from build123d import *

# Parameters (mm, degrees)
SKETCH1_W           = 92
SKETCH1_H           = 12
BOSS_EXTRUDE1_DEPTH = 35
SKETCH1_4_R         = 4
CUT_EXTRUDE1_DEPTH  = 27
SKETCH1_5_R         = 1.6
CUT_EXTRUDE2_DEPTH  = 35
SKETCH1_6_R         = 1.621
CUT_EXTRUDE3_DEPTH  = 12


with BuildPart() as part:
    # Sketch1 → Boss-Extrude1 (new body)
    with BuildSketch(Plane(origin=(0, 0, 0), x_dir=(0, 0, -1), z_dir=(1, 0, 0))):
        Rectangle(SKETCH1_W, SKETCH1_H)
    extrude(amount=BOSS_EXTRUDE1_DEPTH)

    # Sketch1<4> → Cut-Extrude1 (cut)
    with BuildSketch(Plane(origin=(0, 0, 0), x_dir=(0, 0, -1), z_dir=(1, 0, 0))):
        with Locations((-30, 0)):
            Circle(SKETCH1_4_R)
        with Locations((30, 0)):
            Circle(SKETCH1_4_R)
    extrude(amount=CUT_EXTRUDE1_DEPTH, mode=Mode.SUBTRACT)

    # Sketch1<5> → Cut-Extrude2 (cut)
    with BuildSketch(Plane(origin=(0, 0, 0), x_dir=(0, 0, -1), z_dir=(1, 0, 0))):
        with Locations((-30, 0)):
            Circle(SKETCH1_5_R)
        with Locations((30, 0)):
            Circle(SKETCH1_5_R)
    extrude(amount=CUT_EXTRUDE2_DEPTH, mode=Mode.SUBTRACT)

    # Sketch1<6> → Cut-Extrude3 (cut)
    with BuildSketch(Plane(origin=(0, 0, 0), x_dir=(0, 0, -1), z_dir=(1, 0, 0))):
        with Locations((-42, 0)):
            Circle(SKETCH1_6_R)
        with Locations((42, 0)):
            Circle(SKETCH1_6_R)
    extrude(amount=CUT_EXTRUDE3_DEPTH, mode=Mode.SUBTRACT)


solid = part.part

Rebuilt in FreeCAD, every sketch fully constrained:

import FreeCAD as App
import Part
import Sketcher
from FreeCAD import Vector


def add_polygon(sketch, points):
    """Adds a closed chain of lines whose ends are joined by coincident constraints."""
    first, n = sketch.GeometryCount, len(points)
    for a, b in zip(points, points[1:] + points[:1]):
        sketch.addGeometry(Part.LineSegment(App.Vector(*a, 0), App.Vector(*b, 0)), False)
    for i in range(n):
        sketch.addConstraint(Sketcher.Constraint("Coincident", first + i, 2, first + (i + 1) % n, 1))

doc = App.newDocument("Part")
params = doc.addObject("Spreadsheet::Sheet", "Params")
for row, (alias, value) in enumerate([
    ("sketch1_width", "12 mm"),
    ("sketch1_height", "92 mm"),
    ("pad1_length", "35 mm"),
    ("sketch2_diameter", "8 mm"),
    ("pocket1_length", "27 mm"),
    ("sketch3_diameter", "3.2 mm"),
    ("pocket2_length", "35 mm"),
    ("pocket3_length", "12 mm"),
], start=1):
    params.set(f"A{row}", alias)
    params.set(f"B{row}", "=" + value)
    params.setAlias(f"B{row}", alias)

body = doc.addObject("PartDesign::Body", "Body")

# Sketch on YZ plane
sketch1 = body.newObject("Sketcher::SketchObject", "Sketch")
sketch1.AttachmentSupport = (doc.getObject("YZ_Plane"), [""])
sketch1.MapMode = "FlatFace"
add_polygon(sketch1, [(6, 46), (-6, 46), (-6, -46), (6, -46)])  # lines 0-3
sketch1.addConstraint([
    Sketcher.Constraint("Horizontal", 0),
    Sketcher.Constraint("Vertical", 1),
    Sketcher.Constraint("Horizontal", 2),
    Sketcher.Constraint("Vertical", 3),
    Sketcher.Constraint("Symmetric", 0, 2, 2, 2, -1, 1),
    Sketcher.Constraint("DistanceX", 0, 2, 0, 1, 12.0),
    Sketcher.Constraint("DistanceY", 1, 2, 1, 1, 92.0),
])
sketch1.setExpression("Constraints[9]", "Params.sketch1_width")
sketch1.setExpression("Constraints[10]", "Params.sketch1_height")
pad1 = body.newObject("PartDesign::Pad", "Pad")
pad1.Profile = sketch1
pad1.setExpression("Length", "Params.pad1_length")

# Sketch on YZ plane
sketch2 = body.newObject("Sketcher::SketchObject", "Sketch001")
sketch2.AttachmentSupport = (doc.getObject("YZ_Plane"), [""])
sketch2.MapMode = "FlatFace"
sketch2.addGeometry([
    Part.Circle(Vector(0, 30, 0), Vector(0, 0, 1), 4),
    Part.Circle(Vector(0, -30, 0), Vector(0, 0, 1), 4),
], False)
sketch2.addConstraint([
    Sketcher.Constraint("Equal", 0, 1),
    Sketcher.Constraint("Symmetric", 0, 3, 1, 3, -1, 1),
    Sketcher.Constraint("PointOnObject", 0, 3, -2),
    Sketcher.Constraint("Diameter", 0, 8.0),
    Sketcher.Constraint("DistanceY", -1, 1, 0, 3, 30.0),
])
sketch2.setExpression("Constraints[3]", "Params.sketch2_diameter")
pocket1 = body.newObject("PartDesign::Pocket", "Pocket")
pocket1.Profile = sketch2
pocket1.setExpression("Length", "Params.pocket1_length")
pocket1.Reversed = True

# Sketch on YZ plane
sketch3 = body.newObject("Sketcher::SketchObject", "Sketch002")
sketch3.AttachmentSupport = (doc.getObject("YZ_Plane"), [""])
sketch3.MapMode = "FlatFace"
sketch3.addGeometry([
    Part.Circle(Vector(0, 30, 0), Vector(0, 0, 1), 1.6),
    Part.Circle(Vector(0, -30, 0), Vector(0, 0, 1), 1.6),
], False)
sketch3.addConstraint([
    Sketcher.Constraint("Equal", 0, 1),
    Sketcher.Constraint("Symmetric", 0, 3, 1, 3, -1, 1),
    Sketcher.Constraint("PointOnObject", 0, 3, -2),
    Sketcher.Constraint("Diameter", 0, 3.2),
    Sketcher.Constraint("DistanceY", -1, 1, 0, 3, 30.0),
])
sketch3.setExpression("Constraints[3]", "Params.sketch3_diameter")
pocket2 = body.newObject("PartDesign::Pocket", "Pocket001")
pocket2.Profile = sketch3
pocket2.setExpression("Length", "Params.pocket2_length")
pocket2.Reversed = True

# Sketch on YZ plane
sketch4 = body.newObject("Sketcher::SketchObject", "Sketch003")
sketch4.AttachmentSupport = (doc.getObject("YZ_Plane"), [""])
sketch4.MapMode = "FlatFace"
sketch4.addGeometry([
    Part.Circle(Vector(0, 42, 0), Vector(0, 0, 1), 1.6),
    Part.Circle(Vector(0, -42, 0), Vector(0, 0, 1), 1.6),
], False)
sketch4.addConstraint([
    Sketcher.Constraint("Equal", 0, 1),
    Sketcher.Constraint("Symmetric", 0, 3, 1, 3, -1, 1),
    Sketcher.Constraint("PointOnObject", 0, 3, -2),
    Sketcher.Constraint("Diameter", 0, 3.242),
    Sketcher.Constraint("DistanceY", -1, 1, 0, 3, 42.0),
])
pocket3 = body.newObject("PartDesign::Pocket", "Pocket002")
pocket3.Profile = sketch4
pocket3.setExpression("Length", "Params.pocket3_length")
pocket3.Reversed = True

doc.recompute()
